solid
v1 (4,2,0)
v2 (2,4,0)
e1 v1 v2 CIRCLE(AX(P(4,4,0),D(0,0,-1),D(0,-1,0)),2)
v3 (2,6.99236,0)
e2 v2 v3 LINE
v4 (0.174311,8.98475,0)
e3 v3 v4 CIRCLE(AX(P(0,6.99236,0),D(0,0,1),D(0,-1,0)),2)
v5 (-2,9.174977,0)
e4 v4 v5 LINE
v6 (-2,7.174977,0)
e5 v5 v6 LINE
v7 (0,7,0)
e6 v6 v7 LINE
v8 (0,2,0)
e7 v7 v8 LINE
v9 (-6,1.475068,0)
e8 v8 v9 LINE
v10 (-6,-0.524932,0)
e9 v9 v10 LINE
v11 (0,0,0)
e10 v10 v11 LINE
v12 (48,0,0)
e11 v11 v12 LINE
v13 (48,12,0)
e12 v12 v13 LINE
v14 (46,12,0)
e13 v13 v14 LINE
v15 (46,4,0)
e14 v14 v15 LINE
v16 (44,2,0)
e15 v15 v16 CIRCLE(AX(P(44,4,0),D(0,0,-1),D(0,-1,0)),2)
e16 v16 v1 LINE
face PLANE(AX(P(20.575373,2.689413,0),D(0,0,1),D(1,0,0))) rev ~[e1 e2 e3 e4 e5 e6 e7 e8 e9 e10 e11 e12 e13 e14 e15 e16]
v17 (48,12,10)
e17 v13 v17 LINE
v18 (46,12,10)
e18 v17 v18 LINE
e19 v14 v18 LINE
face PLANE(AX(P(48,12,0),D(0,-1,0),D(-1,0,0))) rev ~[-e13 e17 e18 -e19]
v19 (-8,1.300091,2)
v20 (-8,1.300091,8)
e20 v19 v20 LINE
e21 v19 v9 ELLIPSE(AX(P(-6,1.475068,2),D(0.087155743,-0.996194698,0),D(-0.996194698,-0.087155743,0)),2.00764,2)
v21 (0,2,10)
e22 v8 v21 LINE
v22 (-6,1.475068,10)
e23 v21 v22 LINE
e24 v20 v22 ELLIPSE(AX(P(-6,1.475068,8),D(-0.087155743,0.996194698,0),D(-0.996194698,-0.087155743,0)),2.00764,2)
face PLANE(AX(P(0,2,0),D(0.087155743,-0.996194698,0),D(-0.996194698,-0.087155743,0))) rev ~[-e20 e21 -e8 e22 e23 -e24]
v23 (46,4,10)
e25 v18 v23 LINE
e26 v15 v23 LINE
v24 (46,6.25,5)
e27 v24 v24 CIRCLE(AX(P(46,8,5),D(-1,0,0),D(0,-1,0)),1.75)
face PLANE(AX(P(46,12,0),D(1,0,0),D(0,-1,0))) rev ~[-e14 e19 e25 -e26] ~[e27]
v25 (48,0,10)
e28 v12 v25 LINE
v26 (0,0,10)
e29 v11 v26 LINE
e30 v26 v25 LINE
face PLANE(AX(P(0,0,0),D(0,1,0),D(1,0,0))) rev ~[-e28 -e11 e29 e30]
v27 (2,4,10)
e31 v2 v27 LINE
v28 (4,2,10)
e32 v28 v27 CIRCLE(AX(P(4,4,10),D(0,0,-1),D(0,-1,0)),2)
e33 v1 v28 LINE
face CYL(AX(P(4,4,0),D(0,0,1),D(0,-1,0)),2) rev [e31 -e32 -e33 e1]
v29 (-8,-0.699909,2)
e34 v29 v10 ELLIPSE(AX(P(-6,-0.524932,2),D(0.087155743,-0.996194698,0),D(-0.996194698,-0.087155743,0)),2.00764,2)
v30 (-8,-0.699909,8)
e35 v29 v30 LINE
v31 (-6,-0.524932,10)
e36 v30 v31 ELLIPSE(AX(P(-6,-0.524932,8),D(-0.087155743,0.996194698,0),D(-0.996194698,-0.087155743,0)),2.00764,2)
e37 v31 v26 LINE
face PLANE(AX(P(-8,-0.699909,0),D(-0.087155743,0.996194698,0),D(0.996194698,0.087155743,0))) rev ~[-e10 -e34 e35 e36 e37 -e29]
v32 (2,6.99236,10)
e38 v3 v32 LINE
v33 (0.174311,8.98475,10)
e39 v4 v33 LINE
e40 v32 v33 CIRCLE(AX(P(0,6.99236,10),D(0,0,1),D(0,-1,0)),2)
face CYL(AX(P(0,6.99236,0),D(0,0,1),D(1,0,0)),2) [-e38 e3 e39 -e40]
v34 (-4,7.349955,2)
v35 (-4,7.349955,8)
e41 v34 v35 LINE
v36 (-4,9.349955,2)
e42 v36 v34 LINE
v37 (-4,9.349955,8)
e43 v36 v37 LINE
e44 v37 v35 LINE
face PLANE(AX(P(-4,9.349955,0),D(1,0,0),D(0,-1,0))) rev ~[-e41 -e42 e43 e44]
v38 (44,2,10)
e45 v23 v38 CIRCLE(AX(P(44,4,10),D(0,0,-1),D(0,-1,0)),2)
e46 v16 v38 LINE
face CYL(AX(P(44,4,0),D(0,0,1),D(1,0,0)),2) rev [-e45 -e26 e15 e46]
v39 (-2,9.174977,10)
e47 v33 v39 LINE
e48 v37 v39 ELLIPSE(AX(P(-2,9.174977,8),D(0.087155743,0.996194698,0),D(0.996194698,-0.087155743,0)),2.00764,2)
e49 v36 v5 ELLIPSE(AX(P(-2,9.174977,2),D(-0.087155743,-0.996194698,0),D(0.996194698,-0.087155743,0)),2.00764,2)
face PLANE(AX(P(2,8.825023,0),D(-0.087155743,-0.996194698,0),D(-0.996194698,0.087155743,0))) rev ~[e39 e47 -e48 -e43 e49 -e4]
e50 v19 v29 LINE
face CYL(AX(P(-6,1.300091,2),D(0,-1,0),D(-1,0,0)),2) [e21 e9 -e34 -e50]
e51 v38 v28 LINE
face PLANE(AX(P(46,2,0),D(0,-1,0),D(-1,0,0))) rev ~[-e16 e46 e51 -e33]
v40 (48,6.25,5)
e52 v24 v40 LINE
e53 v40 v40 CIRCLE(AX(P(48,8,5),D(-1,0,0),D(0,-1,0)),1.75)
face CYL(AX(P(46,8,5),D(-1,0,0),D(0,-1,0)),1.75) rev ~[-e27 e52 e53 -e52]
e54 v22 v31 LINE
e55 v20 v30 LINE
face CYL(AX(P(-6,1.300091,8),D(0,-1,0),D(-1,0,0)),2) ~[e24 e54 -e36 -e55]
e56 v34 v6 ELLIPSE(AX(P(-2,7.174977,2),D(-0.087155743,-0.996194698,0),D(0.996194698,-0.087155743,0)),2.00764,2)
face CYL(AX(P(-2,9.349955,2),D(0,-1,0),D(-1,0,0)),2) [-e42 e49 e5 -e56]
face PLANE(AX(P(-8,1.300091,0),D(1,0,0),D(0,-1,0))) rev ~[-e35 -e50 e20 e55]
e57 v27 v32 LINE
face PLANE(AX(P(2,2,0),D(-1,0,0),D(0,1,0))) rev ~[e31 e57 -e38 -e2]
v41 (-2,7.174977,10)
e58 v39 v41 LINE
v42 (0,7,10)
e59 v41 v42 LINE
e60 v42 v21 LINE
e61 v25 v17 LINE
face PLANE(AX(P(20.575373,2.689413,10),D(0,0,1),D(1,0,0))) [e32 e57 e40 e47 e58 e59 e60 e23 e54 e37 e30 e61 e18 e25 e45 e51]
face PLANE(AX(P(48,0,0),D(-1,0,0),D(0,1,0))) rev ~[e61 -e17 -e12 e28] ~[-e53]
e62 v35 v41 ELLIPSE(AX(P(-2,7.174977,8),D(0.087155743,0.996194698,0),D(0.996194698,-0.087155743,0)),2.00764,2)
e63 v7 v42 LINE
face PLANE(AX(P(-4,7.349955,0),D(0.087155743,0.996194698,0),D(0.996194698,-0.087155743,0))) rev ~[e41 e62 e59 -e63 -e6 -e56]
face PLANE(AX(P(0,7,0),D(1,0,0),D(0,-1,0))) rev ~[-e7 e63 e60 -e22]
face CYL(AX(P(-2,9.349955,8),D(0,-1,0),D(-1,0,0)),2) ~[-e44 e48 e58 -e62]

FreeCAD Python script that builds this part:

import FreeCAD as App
import Part
import Sketcher
from FreeCAD import Vector
Q = App.Units.Quantity


def edges_at(feature, points):
    """Names of the edges that pass closest to the given points."""
    edges = feature.Shape.Edges
    near = lambda p: min(range(len(edges)), key=lambda i: edges[i].distToShape(Part.Vertex(*p))[0])
    return sorted({f"Edge{near(p) + 1}" for p in points})


def add_polygon(sketch, points):
    """Adds a closed chain of lines whose ends are joined by coincident constraints."""
    first, n = sketch.GeometryCount, len(points)
    for a, b in zip(points, points[1:] + points[:1]):
        sketch.addGeometry(Part.LineSegment(App.Vector(*a, 0), App.Vector(*b, 0)), False)
    for i in range(n):
        sketch.addConstraint(Sketcher.Constraint("Coincident", first + i, 2, first + (i + 1) % n, 1))

doc = App.newDocument("Part")
body = doc.addObject("PartDesign::Body", "Body")

# Sketch on XY plane
sketch1 = body.newObject("Sketcher::SketchObject", "Sketch")
sketch1.AttachmentSupport = (doc.getObject("XY_Plane"), [""])
sketch1.MapMode = "FlatFace"
add_polygon(sketch1, [(0, 0), (48, 0), (48, 12), (46, 12), (46, 2), (2, 2), (2, 8.825023), (-4, 9.349955), (-4, 7.349955), (0, 7), (0, 2), (-8, 1.300091), (-8, -0.699909)])  # lines 0-12
sketch1.addConstraint([
    Sketcher.Constraint("Horizontal", 0),
    Sketcher.Constraint("Vertical", 1),
    Sketcher.Constraint("Horizontal", 2),
    Sketcher.Constraint("Vertical", 3),
    Sketcher.Constraint("Horizontal", 4),
    Sketcher.Constraint("Vertical", 5),
    Sketcher.Constraint("Vertical", 7),
    Sketcher.Constraint("Vertical", 9),
    Sketcher.Constraint("Vertical", 11),
    Sketcher.Constraint("Coincident", 12, 2, -1, 1),
    Sketcher.Constraint("PointOnObject", 8, 2, -2),
    Sketcher.Constraint("Parallel", 6, 8),
    Sketcher.Constraint("Parallel", 10, 12),
    Sketcher.Constraint("Horizontal", 4, 2, 9, 2),
    Sketcher.Constraint("Equal", 2, 7),
    Sketcher.Constraint("Equal", 7, 11),
    Sketcher.Constraint("DistanceX", 0, 1, 0, 2, Q("48 mm")),
    Sketcher.Constraint("DistanceX", 2, 2, 2, 1, Q("2 mm")),
    Sketcher.Constraint("DistanceX", 4, 2, 4, 1, Q("44 mm")),
    Sketcher.Constraint("DistanceY", 1, 1, 1, 2, Q("12 mm")),
    Sketcher.Constraint("DistanceY", 9, 2, 9, 1, Q("5 mm")),
    Sketcher.Constraint("Angle", 6, Q("175 deg")),
    Sketcher.Constraint("Angle", 10, Q("-175 deg")),
    Sketcher.Constraint("DistanceX", 6, 2, -1, 1, Q("4 mm")),
    Sketcher.Constraint("DistanceX", 10, 2, -1, 1, Q("8 mm")),
])
pad1 = body.newObject("PartDesign::Pad", "Pad")
pad1.Profile = sketch1
pad1.Length = 10
doc.recompute()

fillet = body.newObject("PartDesign::Fillet", "Fillet")
fillet.Base = (pad1, edges_at(pad1, [
    (-8, 0.3, 10),
    (-8, 0.3, 0),
    (-4, 8.35, 0),
    (-4, 8.35, 10),
    (2, 2, 5),
    (2, 8.825, 5),
    (46, 2, 5),
]))
fillet.Radius = 2

# Sketch on YZ plane
sketch2 = body.newObject("Sketcher::SketchObject", "Sketch001")
sketch2.AttachmentSupport = (doc.getObject("YZ_Plane"), [""])
sketch2.MapMode = "FlatFace"
sketch2.AttachmentOffset = App.Placement(Vector(0, 0, 46), App.Rotation())
sketch2.addGeometry(Part.Circle(Vector(8, 5, 0), Vector(0, 0, 1), 1.75), False)
sketch2.addConstraint([
    Sketcher.Constraint("Diameter", 0, Q("3.5 mm")),
    Sketcher.Constraint("DistanceX", -1, 1, 0, 3, Q("8 mm")),
    Sketcher.Constraint("DistanceY", -1, 1, 0, 3, Q("5 mm")),
])
pocket1 = body.newObject("PartDesign::Pocket", "Pocket")
pocket1.Profile = sketch2
pocket1.Type = "ThroughAll"
pocket1.Reversed = True

doc.recompute()
